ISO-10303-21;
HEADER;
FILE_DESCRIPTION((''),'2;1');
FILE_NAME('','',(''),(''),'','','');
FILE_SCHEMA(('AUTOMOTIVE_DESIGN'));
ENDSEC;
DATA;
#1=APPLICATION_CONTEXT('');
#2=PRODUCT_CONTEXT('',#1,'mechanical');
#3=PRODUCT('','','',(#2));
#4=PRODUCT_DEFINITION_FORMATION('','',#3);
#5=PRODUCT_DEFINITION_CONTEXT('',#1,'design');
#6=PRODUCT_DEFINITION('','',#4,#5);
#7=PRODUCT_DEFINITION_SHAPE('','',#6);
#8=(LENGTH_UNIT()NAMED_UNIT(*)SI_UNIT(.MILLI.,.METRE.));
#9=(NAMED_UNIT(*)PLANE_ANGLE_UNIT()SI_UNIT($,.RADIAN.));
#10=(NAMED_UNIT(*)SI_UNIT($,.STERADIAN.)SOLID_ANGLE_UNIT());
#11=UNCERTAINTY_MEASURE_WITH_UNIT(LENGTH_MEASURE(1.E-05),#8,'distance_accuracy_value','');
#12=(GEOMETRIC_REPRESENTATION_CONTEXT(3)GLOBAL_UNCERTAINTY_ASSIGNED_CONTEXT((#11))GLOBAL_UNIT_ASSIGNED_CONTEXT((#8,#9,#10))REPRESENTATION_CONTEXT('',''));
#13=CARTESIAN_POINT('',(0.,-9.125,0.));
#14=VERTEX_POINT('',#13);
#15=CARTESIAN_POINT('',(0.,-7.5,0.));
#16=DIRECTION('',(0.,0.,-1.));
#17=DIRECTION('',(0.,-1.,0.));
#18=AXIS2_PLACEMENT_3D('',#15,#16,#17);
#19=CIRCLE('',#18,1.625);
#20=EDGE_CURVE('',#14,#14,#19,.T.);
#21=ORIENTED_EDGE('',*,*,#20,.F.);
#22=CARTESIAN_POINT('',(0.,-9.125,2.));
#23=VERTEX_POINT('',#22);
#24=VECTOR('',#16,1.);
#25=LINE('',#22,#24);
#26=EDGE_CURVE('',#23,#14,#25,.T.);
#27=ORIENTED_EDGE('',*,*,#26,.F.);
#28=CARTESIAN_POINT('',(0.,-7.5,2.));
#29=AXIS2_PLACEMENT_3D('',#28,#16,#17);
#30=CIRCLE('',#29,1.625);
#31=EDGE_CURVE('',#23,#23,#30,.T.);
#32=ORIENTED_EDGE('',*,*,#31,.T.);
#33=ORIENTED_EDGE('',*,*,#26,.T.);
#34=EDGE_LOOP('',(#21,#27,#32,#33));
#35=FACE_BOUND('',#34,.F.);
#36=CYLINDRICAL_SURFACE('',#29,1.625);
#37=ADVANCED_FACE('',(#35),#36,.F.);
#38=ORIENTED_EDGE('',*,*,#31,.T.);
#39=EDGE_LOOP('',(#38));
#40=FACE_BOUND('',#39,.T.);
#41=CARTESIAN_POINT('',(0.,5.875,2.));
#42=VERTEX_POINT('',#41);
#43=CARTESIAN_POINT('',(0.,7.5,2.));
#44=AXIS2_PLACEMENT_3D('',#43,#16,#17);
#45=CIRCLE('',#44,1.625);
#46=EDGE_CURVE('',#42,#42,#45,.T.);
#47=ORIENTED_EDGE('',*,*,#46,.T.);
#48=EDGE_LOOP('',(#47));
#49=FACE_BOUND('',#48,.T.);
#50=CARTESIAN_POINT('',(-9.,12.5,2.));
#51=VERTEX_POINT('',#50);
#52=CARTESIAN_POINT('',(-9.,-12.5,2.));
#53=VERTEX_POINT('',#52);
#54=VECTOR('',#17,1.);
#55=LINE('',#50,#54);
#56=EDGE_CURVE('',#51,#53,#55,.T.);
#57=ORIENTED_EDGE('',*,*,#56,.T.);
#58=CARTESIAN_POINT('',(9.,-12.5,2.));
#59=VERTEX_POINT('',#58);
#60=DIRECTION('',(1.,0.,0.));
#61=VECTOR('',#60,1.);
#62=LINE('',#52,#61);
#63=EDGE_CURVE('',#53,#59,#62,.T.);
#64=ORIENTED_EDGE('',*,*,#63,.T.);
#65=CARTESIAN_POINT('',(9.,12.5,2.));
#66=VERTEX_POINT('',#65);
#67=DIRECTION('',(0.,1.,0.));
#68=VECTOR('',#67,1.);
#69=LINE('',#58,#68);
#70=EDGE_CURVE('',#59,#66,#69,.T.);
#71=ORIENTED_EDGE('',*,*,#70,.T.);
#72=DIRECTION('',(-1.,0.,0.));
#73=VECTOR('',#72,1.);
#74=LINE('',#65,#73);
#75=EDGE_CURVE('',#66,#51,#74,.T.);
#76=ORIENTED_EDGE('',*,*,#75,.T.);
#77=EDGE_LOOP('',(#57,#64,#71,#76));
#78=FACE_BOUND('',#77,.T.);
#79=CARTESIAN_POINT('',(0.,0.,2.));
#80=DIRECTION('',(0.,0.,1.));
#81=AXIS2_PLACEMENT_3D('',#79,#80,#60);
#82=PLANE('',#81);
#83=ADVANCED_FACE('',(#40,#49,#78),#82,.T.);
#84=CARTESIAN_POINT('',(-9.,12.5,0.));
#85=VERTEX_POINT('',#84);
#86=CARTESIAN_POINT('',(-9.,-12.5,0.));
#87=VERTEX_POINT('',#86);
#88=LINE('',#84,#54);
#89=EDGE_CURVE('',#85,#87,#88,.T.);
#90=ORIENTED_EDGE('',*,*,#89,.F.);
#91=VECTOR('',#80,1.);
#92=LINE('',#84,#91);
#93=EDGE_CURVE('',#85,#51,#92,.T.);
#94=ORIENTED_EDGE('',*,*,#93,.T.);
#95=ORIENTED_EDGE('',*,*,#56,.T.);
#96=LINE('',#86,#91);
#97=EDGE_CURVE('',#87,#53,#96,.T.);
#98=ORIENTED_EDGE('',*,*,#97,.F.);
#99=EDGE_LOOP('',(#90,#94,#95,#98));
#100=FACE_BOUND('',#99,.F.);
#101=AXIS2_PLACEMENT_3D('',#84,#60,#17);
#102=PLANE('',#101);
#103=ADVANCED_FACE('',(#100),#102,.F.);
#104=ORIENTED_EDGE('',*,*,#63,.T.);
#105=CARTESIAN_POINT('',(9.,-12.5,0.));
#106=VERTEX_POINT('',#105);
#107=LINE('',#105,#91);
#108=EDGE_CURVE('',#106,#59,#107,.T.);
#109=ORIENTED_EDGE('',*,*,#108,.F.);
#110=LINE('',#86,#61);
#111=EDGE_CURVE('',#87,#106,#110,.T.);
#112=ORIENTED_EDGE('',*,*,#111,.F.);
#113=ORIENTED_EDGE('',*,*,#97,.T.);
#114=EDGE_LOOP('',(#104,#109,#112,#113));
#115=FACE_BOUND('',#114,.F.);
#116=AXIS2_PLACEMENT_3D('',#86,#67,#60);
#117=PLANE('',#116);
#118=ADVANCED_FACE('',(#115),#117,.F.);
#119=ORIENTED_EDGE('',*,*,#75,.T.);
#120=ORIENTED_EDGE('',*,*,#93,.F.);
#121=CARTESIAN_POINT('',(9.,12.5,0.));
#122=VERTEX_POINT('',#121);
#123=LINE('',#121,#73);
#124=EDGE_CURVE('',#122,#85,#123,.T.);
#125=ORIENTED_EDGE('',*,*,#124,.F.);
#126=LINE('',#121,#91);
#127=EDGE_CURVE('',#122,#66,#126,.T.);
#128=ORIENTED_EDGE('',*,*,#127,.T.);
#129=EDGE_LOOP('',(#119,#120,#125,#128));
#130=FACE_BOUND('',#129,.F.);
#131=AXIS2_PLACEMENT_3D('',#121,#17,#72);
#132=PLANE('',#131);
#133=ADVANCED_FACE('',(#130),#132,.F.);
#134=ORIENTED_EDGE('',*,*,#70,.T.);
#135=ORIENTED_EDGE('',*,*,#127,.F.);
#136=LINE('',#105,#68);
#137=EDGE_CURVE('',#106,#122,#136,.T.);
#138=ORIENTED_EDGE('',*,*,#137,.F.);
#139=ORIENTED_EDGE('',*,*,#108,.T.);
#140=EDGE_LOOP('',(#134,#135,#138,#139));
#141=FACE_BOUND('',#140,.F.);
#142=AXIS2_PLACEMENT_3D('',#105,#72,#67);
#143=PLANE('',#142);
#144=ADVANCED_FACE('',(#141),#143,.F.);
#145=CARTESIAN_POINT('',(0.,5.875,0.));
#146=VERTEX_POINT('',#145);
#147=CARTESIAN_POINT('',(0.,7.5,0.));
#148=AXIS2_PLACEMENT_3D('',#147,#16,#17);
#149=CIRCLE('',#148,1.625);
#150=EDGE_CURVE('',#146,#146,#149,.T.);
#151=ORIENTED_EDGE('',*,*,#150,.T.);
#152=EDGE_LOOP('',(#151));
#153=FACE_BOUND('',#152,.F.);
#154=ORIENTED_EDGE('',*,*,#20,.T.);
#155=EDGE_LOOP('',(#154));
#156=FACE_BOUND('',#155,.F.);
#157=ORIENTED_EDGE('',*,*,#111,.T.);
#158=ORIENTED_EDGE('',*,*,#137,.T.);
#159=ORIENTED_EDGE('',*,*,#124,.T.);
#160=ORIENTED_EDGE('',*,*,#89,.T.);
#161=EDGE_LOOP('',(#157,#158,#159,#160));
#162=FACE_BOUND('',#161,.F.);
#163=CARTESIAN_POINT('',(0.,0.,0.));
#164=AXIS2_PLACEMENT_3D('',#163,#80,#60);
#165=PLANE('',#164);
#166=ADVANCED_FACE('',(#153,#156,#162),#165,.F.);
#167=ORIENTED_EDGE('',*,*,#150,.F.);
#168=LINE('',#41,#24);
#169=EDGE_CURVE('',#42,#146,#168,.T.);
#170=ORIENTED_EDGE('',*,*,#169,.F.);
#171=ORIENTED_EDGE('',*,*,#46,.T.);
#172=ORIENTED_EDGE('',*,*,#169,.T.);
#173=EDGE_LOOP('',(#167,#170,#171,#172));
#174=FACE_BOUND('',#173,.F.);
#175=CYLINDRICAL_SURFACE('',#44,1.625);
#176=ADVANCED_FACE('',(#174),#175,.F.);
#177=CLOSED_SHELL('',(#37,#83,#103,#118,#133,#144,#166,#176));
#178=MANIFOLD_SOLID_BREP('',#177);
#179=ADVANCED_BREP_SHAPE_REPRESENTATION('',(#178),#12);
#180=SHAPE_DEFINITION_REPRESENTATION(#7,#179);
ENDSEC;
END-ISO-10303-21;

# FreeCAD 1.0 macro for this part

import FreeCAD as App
import Part
import Sketcher

doc = App.newDocument("Part")
params = doc.addObject("Spreadsheet::Sheet", "Params")
for row, (alias, value) in enumerate([
    ("sketch1_width", "18 mm"),
    ("sketch1_height", "25 mm"),
    ("pad1_length", "2 mm"),
    ("sketch2_diameter", "3.25 mm"),
    ("hole_diameter", "3.25 mm"),
], start=1):
    params.set(f"A{row}", alias)
    params.set(f"B{row}", "=" + value)
    params.setAlias(f"B{row}", alias)

body = doc.addObject("PartDesign::Body", "Body")

sketch1 = doc.addObject("Sketcher::SketchObject", "Sketch")
body.addObject(sketch1)
sketch1.AttachmentSupport = (doc.XY_Plane, [""])
sketch1.MapMode = "FlatFace"
sketch1.addGeometry([
    Part.LineSegment(App.Vector(-9, 12, 0), App.Vector(-9, -12, 0)),
    Part.LineSegment(App.Vector(-9, -12, 0), App.Vector(9, -12, 0)),
    Part.LineSegment(App.Vector(9, -12, 0), App.Vector(9, 12, 0)),
    Part.LineSegment(App.Vector(9, 12, 0), App.Vector(-9, 12, 0)),
], False)
sketch1.addConstraint([
    Sketcher.Constraint("Coincident", 0, 2, 1, 1),
    Sketcher.Constraint("Coincident", 1, 2, 2, 1),
    Sketcher.Constraint("Coincident", 2, 2, 3, 1),
    Sketcher.Constraint("Coincident", 3, 2, 0, 1),
    Sketcher.Constraint("Vertical", 0),
    Sketcher.Constraint("Horizontal", 1),
    Sketcher.Constraint("Vertical", 2),
    Sketcher.Constraint("Horizontal", 3),
    Sketcher.Constraint("Symmetric", 0, 2, 2, 2, -1, 1),
    Sketcher.Constraint("DistanceX", 1, 1, 1, 2, 18.0),
    Sketcher.Constraint("DistanceY", 0, 2, 0, 1, 25.0),
])
sketch1.setExpression("Constraints[9]", "Params.sketch1_width")
sketch1.setExpression("Constraints[10]", "Params.sketch1_height")
pad1 = doc.addObject("PartDesign::Pad", "Pad")
body.addObject(pad1)
pad1.Profile = sketch1
pad1.setExpression("Length", "Params.pad1_length")

sketch2 = doc.addObject("Sketcher::SketchObject", "Sketch001")
body.addObject(sketch2)
sketch2.AttachmentSupport = (doc.XY_Plane, [""])
sketch2.MapMode = "FlatFace"
sketch2.AttachmentOffset = App.Placement(App.Vector(0, 0, 2), App.Rotation())
sketch2.addGeometry([
    Part.Circle(App.Vector(0, -7.5, 0), App.Vector(0, 0, 1), 1.6),
    Part.Circle(App.Vector(0, 7.5, 0), App.Vector(0, 0, 1), 1.6),
], False)
sketch2.addConstraint([
    Sketcher.Constraint("Equal", 0, 1),
    Sketcher.Constraint("Symmetric", 0, 3, 1, 3, -1, 1),
    Sketcher.Constraint("PointOnObject", 0, 3, -2),
    Sketcher.Constraint("Diameter", 0, 3.25),
    Sketcher.Constraint("DistanceY", 0, 3, 1, 3, 15.0),
])
sketch2.setExpression("Constraints[3]", "Params.sketch2_diameter")
doc.recompute()
hole = doc.addObject("PartDesign::Hole", "Hole")
body.addObject(hole)
hole.Profile = sketch2
hole.ThreadType = "None"
hole.setExpression("Diameter", "Params.hole_diameter")
hole.DepthType = "ThroughAll"

doc.recompute()
